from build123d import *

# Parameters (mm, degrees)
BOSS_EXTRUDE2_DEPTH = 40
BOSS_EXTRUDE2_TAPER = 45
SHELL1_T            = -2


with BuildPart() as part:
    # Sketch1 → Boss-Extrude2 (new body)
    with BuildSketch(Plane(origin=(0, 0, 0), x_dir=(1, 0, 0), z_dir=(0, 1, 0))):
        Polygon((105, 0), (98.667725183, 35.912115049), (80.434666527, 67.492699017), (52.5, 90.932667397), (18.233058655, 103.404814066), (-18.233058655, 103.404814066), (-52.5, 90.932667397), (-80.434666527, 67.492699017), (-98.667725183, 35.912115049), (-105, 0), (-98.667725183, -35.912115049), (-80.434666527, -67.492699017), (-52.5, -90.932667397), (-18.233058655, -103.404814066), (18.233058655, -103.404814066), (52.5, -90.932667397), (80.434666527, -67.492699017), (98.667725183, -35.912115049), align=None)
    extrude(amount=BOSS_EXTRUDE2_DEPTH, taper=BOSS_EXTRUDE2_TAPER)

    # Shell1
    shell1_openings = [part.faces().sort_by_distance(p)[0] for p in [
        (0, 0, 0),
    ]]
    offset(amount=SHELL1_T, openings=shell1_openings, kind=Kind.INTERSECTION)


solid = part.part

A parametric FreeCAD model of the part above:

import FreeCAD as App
import Part
import Sketcher
from FreeCAD import Vector
Q = App.Units.Quantity


def faces_at(feature, points):
    """Names of the faces that lie closest to the given points."""
    faces = feature.Shape.Faces
    near = lambda p: min(range(len(faces)), key=lambda i: faces[i].distToShape(Part.Vertex(*p))[0])
    return sorted({f"Face{near(p) + 1}" for p in points})

doc = App.newDocument("Part")
body = doc.addObject("PartDesign::Body", "Body")

# Sketch on XZ plane
sketch1 = body.newObject("Sketcher::SketchObject", "Sketch")
sketch1.AttachmentSupport = (doc.getObject("XZ_Plane"), [""])
sketch1.MapMode = "FlatFace"
sketch1.addGeometry([
    Part.LineSegment(Vector(105, 0, 0), Vector(99, -36, 0)),  # 0
    Part.LineSegment(Vector(99, -36, 0), Vector(80, -67, 0)),  # 1
    Part.LineSegment(Vector(80, -67, 0), Vector(52, -91, 0)),  # 2
    Part.LineSegment(Vector(52, -91, 0), Vector(18, -103, 0)),  # 3
    Part.LineSegment(Vector(18, -103, 0), Vector(-18, -103, 0)),  # 4
    Part.LineSegment(Vector(-18, -103, 0), Vector(-52, -91, 0)),  # 5
    Part.LineSegment(Vector(-52, -91, 0), Vector(-80, -67, 0)),  # 6
    Part.LineSegment(Vector(-80, -67, 0), Vector(-99, -36, 0)),  # 7
    Part.LineSegment(Vector(-99, -36, 0), Vector(-105, 0, 0)),  # 8
    Part.LineSegment(Vector(-105, 0, 0), Vector(-99, 36, 0)),  # 9
    Part.LineSegment(Vector(-99, 36, 0), Vector(-80, 67, 0)),  # 10
    Part.LineSegment(Vector(-80, 67, 0), Vector(-52, 91, 0)),  # 11
    Part.LineSegment(Vector(-52, 91, 0), Vector(-18, 103, 0)),  # 12
    Part.LineSegment(Vector(-18, 103, 0), Vector(18, 103, 0)),  # 13
    Part.LineSegment(Vector(18, 103, 0), Vector(52, 91, 0)),  # 14
    Part.LineSegment(Vector(52, 91, 0), Vector(80, 67, 0)),  # 15
    Part.LineSegment(Vector(80, 67, 0), Vector(99, 36, 0)),  # 16
    Part.LineSegment(Vector(99, 36, 0), Vector(105, 0, 0)),  # 17
], False)
sketch1.addConstraint([
    Sketcher.Constraint("Coincident", 0, 2, 1, 1),
    Sketcher.Constraint("Coincident", 1, 2, 2, 1),
    Sketcher.Constraint("Coincident", 2, 2, 3, 1),
    Sketcher.Constraint("Coincident", 3, 2, 4, 1),
    Sketcher.Constraint("Coincident", 4, 2, 5, 1),
    Sketcher.Constraint("Coincident", 5, 2, 6, 1),
    Sketcher.Constraint("Coincident", 6, 2, 7, 1),
    Sketcher.Constraint("Coincident", 7, 2, 8, 1),
    Sketcher.Constraint("Coincident", 8, 2, 9, 1),
    Sketcher.Constraint("Coincident", 9, 2, 10, 1),
    Sketcher.Constraint("Coincident", 10, 2, 11, 1),
    Sketcher.Constraint("Coincident", 11, 2, 12, 1),
    Sketcher.Constraint("Coincident", 12, 2, 13, 1),
    Sketcher.Constraint("Coincident", 13, 2, 14, 1),
    Sketcher.Constraint("Coincident", 14, 2, 15, 1),
    Sketcher.Constraint("Coincident", 15, 2, 16, 1),
    Sketcher.Constraint("Coincident", 16, 2, 17, 1),
    Sketcher.Constraint("Coincident", 17, 2, 0, 1),
    Sketcher.Constraint("Horizontal", 4),
    Sketcher.Constraint("Horizontal", 13),
    Sketcher.Constraint("Symmetric", 0, 2, 9, 2, -1, 1),
    Sketcher.Constraint("Symmetric", 1, 2, 10, 2, -1, 1),
    Sketcher.Constraint("Symmetric", 2, 2, 11, 2, -1, 1),
    Sketcher.Constraint("Symmetric", 3, 2, 12, 2, -1, 1),
    Sketcher.Constraint("Symmetric", 5, 2, 14, 2, -1, 1),
    Sketcher.Constraint("Symmetric", 6, 2, 15, 2, -1, 1),
    Sketcher.Constraint("Symmetric", 7, 2, 16, 2, -1, 1),
    Sketcher.Constraint("Symmetric", 8, 2, 17, 2, -1, 1),
    Sketcher.Constraint("Symmetric", 2, 2, 5, 2, -2),
    Sketcher.Constraint("Symmetric", 1, 2, 6, 2, -2),
    Sketcher.Constraint("Symmetric", 0, 2, 7, 2, -2),
    Sketcher.Constraint("PointOnObject", 8, 2, -1),
    Sketcher.Constraint("Parallel", 5, 14),
    Sketcher.Constraint("Vertical", 4, 2, 12, 2),
    Sketcher.Constraint("Equal", 0, 1),
    Sketcher.Constraint("Equal", 1, 2),
    Sketcher.Constraint("Equal", 2, 3),
    Sketcher.Constraint("Angle", 0, Q("-100 deg")),
    Sketcher.Constraint("Angle", 1, Q("-120 deg")),
    Sketcher.Constraint("Angle", 2, Q("-140 deg")),
    Sketcher.Constraint("Angle", 3, Q("-160 deg")),
    Sketcher.Constraint("DistanceX", 8, 2, -1, 1, 105.0),
    Sketcher.Constraint("DistanceX", 5, 2, 2, 2, 105.0),
])
pad1 = body.newObject("PartDesign::Pad", "Pad")
pad1.Profile = sketch1
pad1.Length = 40
pad1.Reversed = True
pad1.TaperAngle = -45
doc.recompute()

thickness = body.newObject("PartDesign::Thickness", "Thickness")
thickness.Base = (pad1, faces_at(pad1, [(0, 0, 0)]))
thickness.Value = 2
thickness.Reversed = True
thickness.Join = "Intersection"

doc.recompute()
